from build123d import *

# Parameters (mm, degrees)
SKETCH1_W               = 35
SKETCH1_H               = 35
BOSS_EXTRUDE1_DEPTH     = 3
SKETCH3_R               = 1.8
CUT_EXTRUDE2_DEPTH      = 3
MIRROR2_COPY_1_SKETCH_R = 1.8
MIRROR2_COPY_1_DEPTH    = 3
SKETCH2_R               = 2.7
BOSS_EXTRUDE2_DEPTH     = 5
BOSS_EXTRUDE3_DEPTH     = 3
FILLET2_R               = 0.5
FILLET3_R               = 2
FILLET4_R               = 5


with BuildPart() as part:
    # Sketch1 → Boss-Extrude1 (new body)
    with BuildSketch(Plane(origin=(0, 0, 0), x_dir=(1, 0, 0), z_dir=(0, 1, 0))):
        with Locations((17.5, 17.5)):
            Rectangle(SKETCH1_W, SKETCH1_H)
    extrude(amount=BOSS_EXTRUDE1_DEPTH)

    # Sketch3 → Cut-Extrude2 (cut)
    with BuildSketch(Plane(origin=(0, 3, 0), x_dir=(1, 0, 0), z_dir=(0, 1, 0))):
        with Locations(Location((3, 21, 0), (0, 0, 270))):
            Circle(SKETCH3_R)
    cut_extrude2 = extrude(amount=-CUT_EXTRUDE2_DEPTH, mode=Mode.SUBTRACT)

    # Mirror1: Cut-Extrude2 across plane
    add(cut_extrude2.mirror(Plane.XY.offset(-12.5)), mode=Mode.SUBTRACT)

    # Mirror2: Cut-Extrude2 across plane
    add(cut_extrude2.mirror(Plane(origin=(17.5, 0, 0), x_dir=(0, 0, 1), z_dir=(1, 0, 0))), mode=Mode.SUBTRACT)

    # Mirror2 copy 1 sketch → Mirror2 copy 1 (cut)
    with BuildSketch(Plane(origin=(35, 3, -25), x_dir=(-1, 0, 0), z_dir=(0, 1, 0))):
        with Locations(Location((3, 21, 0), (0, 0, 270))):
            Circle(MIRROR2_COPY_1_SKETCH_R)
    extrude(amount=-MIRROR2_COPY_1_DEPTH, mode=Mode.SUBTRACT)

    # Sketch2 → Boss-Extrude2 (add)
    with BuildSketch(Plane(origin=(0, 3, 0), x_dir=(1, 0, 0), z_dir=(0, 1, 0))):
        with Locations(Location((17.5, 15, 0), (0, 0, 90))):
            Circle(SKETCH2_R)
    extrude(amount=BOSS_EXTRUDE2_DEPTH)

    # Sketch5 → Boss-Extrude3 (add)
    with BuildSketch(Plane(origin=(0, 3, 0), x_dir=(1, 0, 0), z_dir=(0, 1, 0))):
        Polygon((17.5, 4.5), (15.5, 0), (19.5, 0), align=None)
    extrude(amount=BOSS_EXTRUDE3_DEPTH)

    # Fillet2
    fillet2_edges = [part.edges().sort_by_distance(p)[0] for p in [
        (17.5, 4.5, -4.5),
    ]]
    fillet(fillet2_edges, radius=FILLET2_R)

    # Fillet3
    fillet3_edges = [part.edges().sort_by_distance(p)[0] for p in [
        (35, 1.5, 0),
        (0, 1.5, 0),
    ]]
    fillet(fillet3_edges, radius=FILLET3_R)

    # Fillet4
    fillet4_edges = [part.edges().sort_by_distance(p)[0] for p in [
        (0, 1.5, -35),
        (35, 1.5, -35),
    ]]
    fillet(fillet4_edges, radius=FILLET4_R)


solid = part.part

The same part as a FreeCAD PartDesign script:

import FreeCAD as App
import Part
import Sketcher
from FreeCAD import Vector
Q = App.Units.Quantity


def edges_at(feature, points):
    """Names of the edges that pass closest to the given points."""
    edges = feature.Shape.Edges
    near = lambda p: min(range(len(edges)), key=lambda i: edges[i].distToShape(Part.Vertex(*p))[0])
    return sorted({f"Edge{near(p) + 1}" for p in points})

doc = App.newDocument("Part")
body = doc.addObject("PartDesign::Body", "Body")

# Sketch on XZ plane
sketch1 = doc.addObject("Sketcher::SketchObject", "Sketch")
body.addObject(sketch1)
sketch1.AttachmentSupport = (doc.XZ_Plane, [""])
sketch1.MapMode = "FlatFace"
sketch1.addGeometry([
    Part.LineSegment(Vector(0, -35, 0), Vector(0, 0, 0)),
    Part.LineSegment(Vector(0, 0, 0), Vector(35, 0, 0)),
    Part.LineSegment(Vector(35, 0, 0), Vector(35, -35, 0)),
    Part.LineSegment(Vector(35, -35, 0), Vector(0, -35, 0)),
], False)
sketch1.addConstraint([
    Sketcher.Constraint("Coincident", 0, 2, 1, 1),
    Sketcher.Constraint("Coincident", 1, 2, 2, 1),
    Sketcher.Constraint("Coincident", 2, 2, 3, 1),
    Sketcher.Constraint("Coincident", 3, 2, 0, 1),
    Sketcher.Constraint("Vertical", 0),
    Sketcher.Constraint("Horizontal", 1),
    Sketcher.Constraint("Vertical", 2),
    Sketcher.Constraint("Horizontal", 3),
    Sketcher.Constraint("Coincident", 0, 2, -1, 1),
    Sketcher.Constraint("Equal", 3, 0),
    Sketcher.Constraint("DistanceX", 1, 1, 1, 2, Q("35 mm")),
])
pad1 = doc.addObject("PartDesign::Pad", "Pad")
body.addObject(pad1)
pad1.Profile = sketch1
pad1.Length = 3
pad1.Reversed = True

# Sketch on XZ plane
sketch2 = doc.addObject("Sketcher::SketchObject", "Sketch001")
body.addObject(sketch2)
sketch2.AttachmentSupport = (doc.XZ_Plane, [""])
sketch2.MapMode = "FlatFace"
sketch2.AttachmentOffset = App.Placement(Vector(0, 0, -3), App.Rotation())
sketch2.addGeometry(Part.Circle(Vector(3, -21, 0), Vector(0, 0, 1), 1.8), False)
sketch2.addConstraint([
    Sketcher.Constraint("Diameter", 0, Q("3.6 mm")),
    Sketcher.Constraint("DistanceX", -1, 1, 0, 3, Q("3 mm")),
    Sketcher.Constraint("DistanceY", 0, 3, -1, 1, Q("21 mm")),
])
pocket1 = doc.addObject("PartDesign::Pocket", "Pocket")
body.addObject(pocket1)
pocket1.Profile = sketch2
pocket1.Length = 3
pocket1.Reversed = True
doc.recompute()

datumplane = doc.addObject("PartDesign::Plane", "DatumPlane")
body.addObject(datumplane)
datumplane.AttachmentSupport = (doc.XY_Plane, [""])
datumplane.MapMode = "FlatFace"
datumplane.AttachmentOffset = App.Placement(Vector(0, 0, -12.5), App.Rotation())
mirrored = doc.addObject("PartDesign::Mirrored", "Mirrored")
body.addObject(mirrored)
mirrored.Originals = [pocket1]
mirrored.MirrorPlane = (datumplane, [""])
body.Tip = mirrored
doc.recompute()

datumplane2 = doc.addObject("PartDesign::Plane", "DatumPlane001")
body.addObject(datumplane2)
datumplane2.AttachmentSupport = (doc.YZ_Plane, [""])
datumplane2.MapMode = "FlatFace"
datumplane2.AttachmentOffset = App.Placement(Vector(0, 0, 17.5), App.Rotation())
mirrored2 = doc.addObject("PartDesign::Mirrored", "Mirrored001")
body.addObject(mirrored2)
mirrored2.Originals = [pocket1]
mirrored2.MirrorPlane = (datumplane2, [""])
body.Tip = mirrored2

# Sketch on XZ plane
sketch3 = doc.addObject("Sketcher::SketchObject", "Sketch002")
body.addObject(sketch3)
sketch3.AttachmentSupport = (doc.XZ_Plane, [""])
sketch3.MapMode = "FlatFace"
sketch3.AttachmentOffset = App.Placement(Vector(0, 0, -3), App.Rotation())
sketch3.addGeometry(Part.Circle(Vector(32, -4, 0), Vector(0, 0, 1), 1.8), False)
sketch3.addConstraint([
    Sketcher.Constraint("Diameter", 0, Q("3.6 mm")),
    Sketcher.Constraint("DistanceX", -1, 1, 0, 3, Q("32 mm")),
    Sketcher.Constraint("DistanceY", 0, 3, -1, 1, Q("4 mm")),
])
pocket2 = doc.addObject("PartDesign::Pocket", "Pocket001")
body.addObject(pocket2)
pocket2.Profile = sketch3
pocket2.Length = 3
pocket2.Reversed = True

# Sketch on XZ plane
sketch4 = doc.addObject("Sketcher::SketchObject", "Sketch003")
body.addObject(sketch4)
sketch4.AttachmentSupport = (doc.XZ_Plane, [""])
sketch4.MapMode = "FlatFace"
sketch4.AttachmentOffset = App.Placement(Vector(0, 0, -3), App.Rotation())
sketch4.addGeometry(Part.Circle(Vector(17.5, -15, 0), Vector(0, 0, 1), 2.7), False)
sketch4.addConstraint([
    Sketcher.Constraint("Diameter", 0, Q("5.4 mm")),
    Sketcher.Constraint("DistanceY", 0, 3, -1, 1, Q("15 mm")),
    Sketcher.Constraint("DistanceX", -1, 1, 0, 3, Q("17.5 mm")),
])
pad2 = doc.addObject("PartDesign::Pad", "Pad001")
body.addObject(pad2)
pad2.Profile = sketch4
pad2.Length = 5
pad2.Reversed = True

# Sketch on XZ plane
sketch5 = doc.addObject("Sketcher::SketchObject", "Sketch004")
body.addObject(sketch5)
sketch5.AttachmentSupport = (doc.XZ_Plane, [""])
sketch5.MapMode = "FlatFace"
sketch5.AttachmentOffset = App.Placement(Vector(0, 0, -3), App.Rotation())
sketch5.addGeometry([
    Part.LineSegment(Vector(17.5, -4.5, 0), Vector(15.5, 0, 0)),
    Part.LineSegment(Vector(15.5, 0, 0), Vector(19.5, 0, 0)),
    Part.LineSegment(Vector(19.5, 0, 0), Vector(17.5, -4.5, 0)),
], False)
sketch5.addConstraint([
    Sketcher.Constraint("Coincident", 0, 2, 1, 1),
    Sketcher.Constraint("Coincident", 1, 2, 2, 1),
    Sketcher.Constraint("Coincident", 2, 2, 0, 1),
    Sketcher.Constraint("Horizontal", 1),
    Sketcher.Constraint("PointOnObject", 0, 2, -1),
    Sketcher.Constraint("Equal", 0, 2),
    Sketcher.Constraint("DistanceX", 1, 1, 1, 2, Q("4 mm")),
    Sketcher.Constraint("DistanceX", -1, 1, 0, 2, Q("15.5 mm")),
    Sketcher.Constraint("DistanceY", 2, 2, -1, 1, Q("4.5 mm")),
])
pad3 = doc.addObject("PartDesign::Pad", "Pad002")
body.addObject(pad3)
pad3.Profile = sketch5
pad3.Length = 3
pad3.Reversed = True
doc.recompute()

fillet = doc.addObject("PartDesign::Fillet", "Fillet")
body.addObject(fillet)
fillet.Base = (pad3, edges_at(pad3, [(17.5, 4.5, -4.5)]))
fillet.Radius = 0.5
doc.recompute()

fillet2 = doc.addObject("PartDesign::Fillet", "Fillet001")
body.addObject(fillet2)
fillet2.Base = (fillet, edges_at(fillet, [(35, 1.5, 0), (0, 1.5, 0)]))
fillet2.Radius = 2
doc.recompute()

fillet3 = doc.addObject("PartDesign::Fillet", "Fillet002")
body.addObject(fillet3)
fillet3.Base = (fillet2, edges_at(fillet2, [(0, 1.5, -35), (35, 1.5, -35)]))
fillet3.Radius = 5

doc.recompute()
